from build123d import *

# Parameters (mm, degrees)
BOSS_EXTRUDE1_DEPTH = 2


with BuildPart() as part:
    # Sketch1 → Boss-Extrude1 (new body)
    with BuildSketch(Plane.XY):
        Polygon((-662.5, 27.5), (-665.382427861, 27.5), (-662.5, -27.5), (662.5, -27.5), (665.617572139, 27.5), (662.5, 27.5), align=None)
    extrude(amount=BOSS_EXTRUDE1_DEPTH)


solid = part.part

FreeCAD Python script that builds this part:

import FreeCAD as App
import Part
import Sketcher
Q = App.Units.Quantity


def add_polygon(sketch, points):
    """Adds a closed chain of lines whose ends are joined by coincident constraints."""
    first, n = sketch.GeometryCount, len(points)
    for a, b in zip(points, points[1:] + points[:1]):
        sketch.addGeometry(Part.LineSegment(App.Vector(*a, 0), App.Vector(*b, 0)), False)
    for i in range(n):
        sketch.addConstraint(Sketcher.Constraint("Coincident", first + i, 2, first + (i + 1) % n, 1))

doc = App.newDocument("Part")
body = doc.addObject("PartDesign::Body", "Body")

# Sketch on XY plane
sketch1 = doc.addObject("Sketcher::SketchObject", "Sketch")
body.addObject(sketch1)
sketch1.AttachmentSupport = (doc.XY_Plane, [""])
sketch1.MapMode = "FlatFace"
add_polygon(sketch1, [(-665, 28), (-662, -28), (662, -28), (666, 28)])  # lines 0-3
sketch1.addConstraint([
    Sketcher.Constraint("Horizontal", 1),
    Sketcher.Constraint("Horizontal", 3),
    Sketcher.Constraint("DistanceX", 1, 1, 1, 2, 1325.0),
    Sketcher.Constraint("DistanceX", 3, 2, 3, 1, 1331.0),
    Sketcher.Constraint("Angle", 0, Q("-87 deg")),
    Sketcher.Constraint("DistanceY", 1, 2, 2, 2, 55.0),
    Sketcher.Constraint("DistanceX", 0, 2, -1, 1, 662.5),
    Sketcher.Constraint("DistanceY", 0, 2, -1, 1, 27.5),
])
pad1 = doc.addObject("PartDesign::Pad", "Pad")
body.addObject(pad1)
pad1.Profile = sketch1
pad1.Length = 2

doc.recompute()
